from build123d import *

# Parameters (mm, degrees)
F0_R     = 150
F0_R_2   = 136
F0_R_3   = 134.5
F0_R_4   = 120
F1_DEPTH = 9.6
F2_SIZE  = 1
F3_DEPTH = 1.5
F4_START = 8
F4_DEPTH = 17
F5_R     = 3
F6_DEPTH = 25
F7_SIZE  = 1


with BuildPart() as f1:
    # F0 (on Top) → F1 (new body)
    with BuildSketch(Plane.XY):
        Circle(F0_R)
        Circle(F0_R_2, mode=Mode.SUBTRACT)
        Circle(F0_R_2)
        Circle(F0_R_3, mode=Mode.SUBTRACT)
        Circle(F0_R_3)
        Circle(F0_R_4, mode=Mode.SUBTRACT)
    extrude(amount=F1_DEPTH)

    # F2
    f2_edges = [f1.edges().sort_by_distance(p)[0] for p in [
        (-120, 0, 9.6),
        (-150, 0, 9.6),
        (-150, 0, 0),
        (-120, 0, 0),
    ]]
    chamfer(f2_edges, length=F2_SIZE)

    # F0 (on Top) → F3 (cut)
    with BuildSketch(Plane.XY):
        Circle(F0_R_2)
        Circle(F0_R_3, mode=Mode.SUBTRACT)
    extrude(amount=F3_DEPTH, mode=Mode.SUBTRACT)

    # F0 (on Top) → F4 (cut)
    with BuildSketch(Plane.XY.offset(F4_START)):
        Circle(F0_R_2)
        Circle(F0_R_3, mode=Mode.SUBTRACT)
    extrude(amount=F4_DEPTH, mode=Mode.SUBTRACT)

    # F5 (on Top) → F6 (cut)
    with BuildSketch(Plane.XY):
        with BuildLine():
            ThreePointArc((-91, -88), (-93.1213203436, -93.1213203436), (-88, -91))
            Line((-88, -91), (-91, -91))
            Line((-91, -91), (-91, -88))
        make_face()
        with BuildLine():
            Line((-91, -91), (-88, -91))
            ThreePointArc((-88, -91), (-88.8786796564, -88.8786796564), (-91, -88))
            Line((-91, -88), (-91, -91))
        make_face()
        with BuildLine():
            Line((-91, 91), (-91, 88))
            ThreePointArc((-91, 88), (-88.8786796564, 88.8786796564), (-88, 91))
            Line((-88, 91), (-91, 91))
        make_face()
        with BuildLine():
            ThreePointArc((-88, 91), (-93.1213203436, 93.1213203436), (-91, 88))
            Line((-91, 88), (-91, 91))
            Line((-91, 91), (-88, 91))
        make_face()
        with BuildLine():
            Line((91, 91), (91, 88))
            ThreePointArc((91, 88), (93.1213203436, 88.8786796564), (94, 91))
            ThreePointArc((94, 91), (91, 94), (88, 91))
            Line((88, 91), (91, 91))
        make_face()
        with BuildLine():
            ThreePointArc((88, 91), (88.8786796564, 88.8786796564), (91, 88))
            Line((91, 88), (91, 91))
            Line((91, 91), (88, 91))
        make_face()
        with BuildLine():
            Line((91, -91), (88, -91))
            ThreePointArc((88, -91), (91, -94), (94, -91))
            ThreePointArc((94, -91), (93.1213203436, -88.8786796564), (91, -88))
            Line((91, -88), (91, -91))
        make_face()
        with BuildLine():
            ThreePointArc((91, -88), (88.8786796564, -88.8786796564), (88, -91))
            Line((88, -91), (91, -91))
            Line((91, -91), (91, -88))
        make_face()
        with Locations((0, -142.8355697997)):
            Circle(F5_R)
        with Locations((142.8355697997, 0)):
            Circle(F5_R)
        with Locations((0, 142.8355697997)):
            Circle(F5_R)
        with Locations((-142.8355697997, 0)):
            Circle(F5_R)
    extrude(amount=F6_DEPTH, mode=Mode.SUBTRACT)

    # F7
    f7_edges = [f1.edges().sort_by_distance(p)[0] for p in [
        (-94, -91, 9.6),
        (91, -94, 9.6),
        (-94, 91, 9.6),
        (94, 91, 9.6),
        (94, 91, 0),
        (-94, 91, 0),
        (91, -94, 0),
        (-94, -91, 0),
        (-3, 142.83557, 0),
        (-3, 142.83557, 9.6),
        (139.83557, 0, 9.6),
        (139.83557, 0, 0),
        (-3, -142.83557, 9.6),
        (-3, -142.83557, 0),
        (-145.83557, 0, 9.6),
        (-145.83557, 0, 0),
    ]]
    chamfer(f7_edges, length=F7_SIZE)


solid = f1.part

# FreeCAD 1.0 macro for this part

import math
import FreeCAD as App
import Part
import Sketcher

V = App.Vector


def edges_at(feature, points):
    """Names of the edges that pass closest to the given points."""
    edges = feature.Shape.Edges
    near = lambda p: min(range(len(edges)), key=lambda i: edges[i].distToShape(Part.Vertex(*p))[0])
    return sorted({f"Edge{near(p) + 1}" for p in points})

doc = App.newDocument("Part")
body = doc.addObject("PartDesign::Body", "Body")

sketch1 = body.newObject("Sketcher::SketchObject", "Sketch")
sketch1.AttachmentSupport = (doc.getObject("XY_Plane"), [""])
sketch1.MapMode = "FlatFace"
sketch1.addGeometry([
    Part.Circle(V(0, 0, 0), V(0, 0, 1), 150),
    Part.Circle(V(0, 0, 0), V(0, 0, 1), 120),
], False)
sketch1.addConstraint([
    Sketcher.Constraint("Coincident", 0, 3, -1, 1),
    Sketcher.Constraint("Coincident", 1, 3, -1, 1),
    Sketcher.Constraint("Diameter", 0, 300.0),
    Sketcher.Constraint("Diameter", 1, 240.0),
])
pad1 = body.newObject("PartDesign::Pad", "Pad")
pad1.Profile = sketch1
pad1.Length = 9.6
doc.recompute()

chamfer = body.newObject("PartDesign::Chamfer", "Chamfer")
chamfer.Base = (pad1, edges_at(pad1, [
    (-120, 0, 9.6),
    (-150, 0, 9.6),
    (-150, 0, 0),
    (-120, 0, 0),
]))
chamfer.Size = 1

sketch2 = body.newObject("Sketcher::SketchObject", "Sketch001")
sketch2.AttachmentSupport = (doc.getObject("XY_Plane"), [""])
sketch2.MapMode = "FlatFace"
sketch2.addGeometry([
    Part.Circle(V(0, 0, 0), V(0, 0, 1), 136),
    Part.Circle(V(0, 0, 0), V(0, 0, 1), 134.5),
], False)
sketch2.addConstraint([
    Sketcher.Constraint("Coincident", 0, 3, -1, 1),
    Sketcher.Constraint("Coincident", 1, 3, -1, 1),
    Sketcher.Constraint("Diameter", 0, 272.0),
    Sketcher.Constraint("Diameter", 1, 269.0),
])
pocket1 = body.newObject("PartDesign::Pocket", "Pocket")
pocket1.Profile = sketch2
pocket1.Length = 1.5
pocket1.Reversed = True

sketch3 = body.newObject("Sketcher::SketchObject", "Sketch002")
sketch3.AttachmentSupport = (doc.getObject("XY_Plane"), [""])
sketch3.MapMode = "FlatFace"
sketch3.AttachmentOffset = App.Placement(V(0, 0, 8), App.Rotation())
sketch3.addGeometry([
    Part.Circle(V(0, 0, 0), V(0, 0, 1), 136),
    Part.Circle(V(0, 0, 0), V(0, 0, 1), 134.5),
], False)
sketch3.addConstraint([
    Sketcher.Constraint("Coincident", 0, 3, -1, 1),
    Sketcher.Constraint("Coincident", 1, 3, -1, 1),
    Sketcher.Constraint("Diameter", 0, 272.0),
    Sketcher.Constraint("Diameter", 1, 269.0),
])
pocket2 = body.newObject("PartDesign::Pocket", "Pocket001")
pocket2.Profile = sketch3
pocket2.Length = 17
pocket2.Reversed = True

sketch4 = body.newObject("Sketcher::SketchObject", "Sketch003")
sketch4.AttachmentSupport = (doc.getObject("XY_Plane"), [""])
sketch4.MapMode = "FlatFace"
sketch4.addGeometry([
    Part.ArcOfCircle(Part.Circle(V(-91, -91, 0), V(0, 0, 1), 3), math.radians(90), math.radians(360)),
    Part.ArcOfCircle(Part.Circle(V(-91, -91, 0), V(0, 0, 1), 3), math.radians(0), math.radians(90)),
    Part.ArcOfCircle(Part.Circle(V(-91, 91, 0), V(0, 0, 1), 3), math.radians(-90), math.radians(0)),
    Part.ArcOfCircle(Part.Circle(V(-91, 91, 0), V(0, 0, 1), 3), math.radians(0), math.radians(270)),
    Part.ArcOfCircle(Part.Circle(V(91, 91, 0), V(0, 0, 1), 3), math.radians(-90), math.radians(0)),
    Part.ArcOfCircle(Part.Circle(V(91, 91, 0), V(0, 0, 1), 3), math.radians(0), math.radians(180)),
    Part.ArcOfCircle(Part.Circle(V(91, 91, 0), V(0, 0, 1), 3), math.radians(180), math.radians(270)),
    Part.ArcOfCircle(Part.Circle(V(91, -91, 0), V(0, 0, 1), 3), math.radians(180), math.radians(360)),
    Part.ArcOfCircle(Part.Circle(V(91, -91, 0), V(0, 0, 1), 3), math.radians(0), math.radians(90)),
    Part.ArcOfCircle(Part.Circle(V(91, -91, 0), V(0, 0, 1), 3), math.radians(90), math.radians(180)),
    Part.Circle(V(0, -142.83557, 0), V(0, 0, 1), 3),
    Part.Circle(V(142.83557, 0, 0), V(0, 0, 1), 3),
    Part.Circle(V(0, 142.83557, 0), V(0, 0, 1), 3),
    Part.Circle(V(-142.83557, 0, 0), V(0, 0, 1), 3),
], False)
sketch4.addConstraint([
    Sketcher.Constraint("Tangent", 0, 1, 1, 2),
    Sketcher.Constraint("Coincident", 1, 1, 0, 2),
    Sketcher.Constraint("Tangent", 2, 1, 3, 2),
    Sketcher.Constraint("Coincident", 3, 1, 2, 2),
    Sketcher.Constraint("Tangent", 4, 2, 5, 1),
    Sketcher.Constraint("Tangent", 5, 2, 6, 1),
    Sketcher.Constraint("Tangent", 6, 2, 4, 1),
    Sketcher.Constraint("Tangent", 7, 2, 8, 1),
    Sketcher.Constraint("Tangent", 8, 2, 9, 1),
    Sketcher.Constraint("Tangent", 9, 2, 7, 1),
    Sketcher.Constraint("Equal", 1, 2),
    Sketcher.Constraint("Equal", 3, 4),
    Sketcher.Constraint("Equal", 6, 7),
    Sketcher.Constraint("Equal", 9, 10),
    Sketcher.Constraint("Equal", 10, 11),
    Sketcher.Constraint("Equal", 11, 12),
    Sketcher.Constraint("Equal", 12, 13),
    Sketcher.Constraint("Symmetric", 0, 3, 4, 3, -1, 1),
    Sketcher.Constraint("Symmetric", 2, 3, 7, 3, -1, 1),
    Sketcher.Constraint("Symmetric", 10, 3, 12, 3, -1, 1),
    Sketcher.Constraint("Symmetric", 11, 3, 13, 3, -1, 1),
    Sketcher.Constraint("Symmetric", 2, 3, 4, 3, -2),
    Sketcher.Constraint("PointOnObject", 10, 3, -2),
    Sketcher.Constraint("PointOnObject", 11, 3, -1),
    Sketcher.Constraint("Horizontal", 9, 3, 1, 1),
    Sketcher.Constraint("Horizontal", 6, 3, 3, 1),
    Sketcher.Constraint("Horizontal", 3, 1, 4, 2),
    Sketcher.Constraint("Horizontal", 4, 2, 5, 2),
    Sketcher.Constraint("Horizontal", 1, 1, 7, 2),
    Sketcher.Constraint("Horizontal", 7, 2, 9, 2),
    Sketcher.Constraint("Vertical", 3, 3, 0, 1),
    Sketcher.Constraint("Vertical", 0, 1, 2, 1),
    Sketcher.Constraint("Vertical", 9, 3, 6, 2),
    Sketcher.Constraint("Vertical", 6, 2, 8, 2),
    Sketcher.Constraint("Diameter", 10, 6.0),
    Sketcher.Constraint("DistanceX", 0, 3, -1, 1, 91.0),
    Sketcher.Constraint("DistanceY", 0, 3, -1, 1, 91.0),
    Sketcher.Constraint("DistanceY", 10, 3, -1, 1, 142.83557),
    Sketcher.Constraint("DistanceX", -1, 1, 11, 3, 142.83557),
])
pocket3 = body.newObject("PartDesign::Pocket", "Pocket002")
pocket3.Profile = sketch4
pocket3.Length = 25
pocket3.Reversed = True
doc.recompute()

chamfer2 = body.newObject("PartDesign::Chamfer", "Chamfer001")
chamfer2.Base = (pocket3, edges_at(pocket3, [
    (-93.121, -93.121, 9.6),
    (91, -94, 9.6),
    (-93.121, 93.121, 9.6),
    (91, 94, 9.6),
    (93.121, 88.879, 0),
    (-93.121, 93.121, 0),
    (91, -94, 0),
    (-93.121, -93.121, 0),
    (-3, 142.836, 0),
    (-3, 142.836, 9.6),
    (139.836, 0, 9.6),
    (139.836, 0, 0),
    (-3, -142.836, 9.6),
    (-3, -142.836, 0),
    (-145.836, 0, 9.6),
    (-145.836, 0, 0),
]))
chamfer2.Size = 1

doc.recompute()
